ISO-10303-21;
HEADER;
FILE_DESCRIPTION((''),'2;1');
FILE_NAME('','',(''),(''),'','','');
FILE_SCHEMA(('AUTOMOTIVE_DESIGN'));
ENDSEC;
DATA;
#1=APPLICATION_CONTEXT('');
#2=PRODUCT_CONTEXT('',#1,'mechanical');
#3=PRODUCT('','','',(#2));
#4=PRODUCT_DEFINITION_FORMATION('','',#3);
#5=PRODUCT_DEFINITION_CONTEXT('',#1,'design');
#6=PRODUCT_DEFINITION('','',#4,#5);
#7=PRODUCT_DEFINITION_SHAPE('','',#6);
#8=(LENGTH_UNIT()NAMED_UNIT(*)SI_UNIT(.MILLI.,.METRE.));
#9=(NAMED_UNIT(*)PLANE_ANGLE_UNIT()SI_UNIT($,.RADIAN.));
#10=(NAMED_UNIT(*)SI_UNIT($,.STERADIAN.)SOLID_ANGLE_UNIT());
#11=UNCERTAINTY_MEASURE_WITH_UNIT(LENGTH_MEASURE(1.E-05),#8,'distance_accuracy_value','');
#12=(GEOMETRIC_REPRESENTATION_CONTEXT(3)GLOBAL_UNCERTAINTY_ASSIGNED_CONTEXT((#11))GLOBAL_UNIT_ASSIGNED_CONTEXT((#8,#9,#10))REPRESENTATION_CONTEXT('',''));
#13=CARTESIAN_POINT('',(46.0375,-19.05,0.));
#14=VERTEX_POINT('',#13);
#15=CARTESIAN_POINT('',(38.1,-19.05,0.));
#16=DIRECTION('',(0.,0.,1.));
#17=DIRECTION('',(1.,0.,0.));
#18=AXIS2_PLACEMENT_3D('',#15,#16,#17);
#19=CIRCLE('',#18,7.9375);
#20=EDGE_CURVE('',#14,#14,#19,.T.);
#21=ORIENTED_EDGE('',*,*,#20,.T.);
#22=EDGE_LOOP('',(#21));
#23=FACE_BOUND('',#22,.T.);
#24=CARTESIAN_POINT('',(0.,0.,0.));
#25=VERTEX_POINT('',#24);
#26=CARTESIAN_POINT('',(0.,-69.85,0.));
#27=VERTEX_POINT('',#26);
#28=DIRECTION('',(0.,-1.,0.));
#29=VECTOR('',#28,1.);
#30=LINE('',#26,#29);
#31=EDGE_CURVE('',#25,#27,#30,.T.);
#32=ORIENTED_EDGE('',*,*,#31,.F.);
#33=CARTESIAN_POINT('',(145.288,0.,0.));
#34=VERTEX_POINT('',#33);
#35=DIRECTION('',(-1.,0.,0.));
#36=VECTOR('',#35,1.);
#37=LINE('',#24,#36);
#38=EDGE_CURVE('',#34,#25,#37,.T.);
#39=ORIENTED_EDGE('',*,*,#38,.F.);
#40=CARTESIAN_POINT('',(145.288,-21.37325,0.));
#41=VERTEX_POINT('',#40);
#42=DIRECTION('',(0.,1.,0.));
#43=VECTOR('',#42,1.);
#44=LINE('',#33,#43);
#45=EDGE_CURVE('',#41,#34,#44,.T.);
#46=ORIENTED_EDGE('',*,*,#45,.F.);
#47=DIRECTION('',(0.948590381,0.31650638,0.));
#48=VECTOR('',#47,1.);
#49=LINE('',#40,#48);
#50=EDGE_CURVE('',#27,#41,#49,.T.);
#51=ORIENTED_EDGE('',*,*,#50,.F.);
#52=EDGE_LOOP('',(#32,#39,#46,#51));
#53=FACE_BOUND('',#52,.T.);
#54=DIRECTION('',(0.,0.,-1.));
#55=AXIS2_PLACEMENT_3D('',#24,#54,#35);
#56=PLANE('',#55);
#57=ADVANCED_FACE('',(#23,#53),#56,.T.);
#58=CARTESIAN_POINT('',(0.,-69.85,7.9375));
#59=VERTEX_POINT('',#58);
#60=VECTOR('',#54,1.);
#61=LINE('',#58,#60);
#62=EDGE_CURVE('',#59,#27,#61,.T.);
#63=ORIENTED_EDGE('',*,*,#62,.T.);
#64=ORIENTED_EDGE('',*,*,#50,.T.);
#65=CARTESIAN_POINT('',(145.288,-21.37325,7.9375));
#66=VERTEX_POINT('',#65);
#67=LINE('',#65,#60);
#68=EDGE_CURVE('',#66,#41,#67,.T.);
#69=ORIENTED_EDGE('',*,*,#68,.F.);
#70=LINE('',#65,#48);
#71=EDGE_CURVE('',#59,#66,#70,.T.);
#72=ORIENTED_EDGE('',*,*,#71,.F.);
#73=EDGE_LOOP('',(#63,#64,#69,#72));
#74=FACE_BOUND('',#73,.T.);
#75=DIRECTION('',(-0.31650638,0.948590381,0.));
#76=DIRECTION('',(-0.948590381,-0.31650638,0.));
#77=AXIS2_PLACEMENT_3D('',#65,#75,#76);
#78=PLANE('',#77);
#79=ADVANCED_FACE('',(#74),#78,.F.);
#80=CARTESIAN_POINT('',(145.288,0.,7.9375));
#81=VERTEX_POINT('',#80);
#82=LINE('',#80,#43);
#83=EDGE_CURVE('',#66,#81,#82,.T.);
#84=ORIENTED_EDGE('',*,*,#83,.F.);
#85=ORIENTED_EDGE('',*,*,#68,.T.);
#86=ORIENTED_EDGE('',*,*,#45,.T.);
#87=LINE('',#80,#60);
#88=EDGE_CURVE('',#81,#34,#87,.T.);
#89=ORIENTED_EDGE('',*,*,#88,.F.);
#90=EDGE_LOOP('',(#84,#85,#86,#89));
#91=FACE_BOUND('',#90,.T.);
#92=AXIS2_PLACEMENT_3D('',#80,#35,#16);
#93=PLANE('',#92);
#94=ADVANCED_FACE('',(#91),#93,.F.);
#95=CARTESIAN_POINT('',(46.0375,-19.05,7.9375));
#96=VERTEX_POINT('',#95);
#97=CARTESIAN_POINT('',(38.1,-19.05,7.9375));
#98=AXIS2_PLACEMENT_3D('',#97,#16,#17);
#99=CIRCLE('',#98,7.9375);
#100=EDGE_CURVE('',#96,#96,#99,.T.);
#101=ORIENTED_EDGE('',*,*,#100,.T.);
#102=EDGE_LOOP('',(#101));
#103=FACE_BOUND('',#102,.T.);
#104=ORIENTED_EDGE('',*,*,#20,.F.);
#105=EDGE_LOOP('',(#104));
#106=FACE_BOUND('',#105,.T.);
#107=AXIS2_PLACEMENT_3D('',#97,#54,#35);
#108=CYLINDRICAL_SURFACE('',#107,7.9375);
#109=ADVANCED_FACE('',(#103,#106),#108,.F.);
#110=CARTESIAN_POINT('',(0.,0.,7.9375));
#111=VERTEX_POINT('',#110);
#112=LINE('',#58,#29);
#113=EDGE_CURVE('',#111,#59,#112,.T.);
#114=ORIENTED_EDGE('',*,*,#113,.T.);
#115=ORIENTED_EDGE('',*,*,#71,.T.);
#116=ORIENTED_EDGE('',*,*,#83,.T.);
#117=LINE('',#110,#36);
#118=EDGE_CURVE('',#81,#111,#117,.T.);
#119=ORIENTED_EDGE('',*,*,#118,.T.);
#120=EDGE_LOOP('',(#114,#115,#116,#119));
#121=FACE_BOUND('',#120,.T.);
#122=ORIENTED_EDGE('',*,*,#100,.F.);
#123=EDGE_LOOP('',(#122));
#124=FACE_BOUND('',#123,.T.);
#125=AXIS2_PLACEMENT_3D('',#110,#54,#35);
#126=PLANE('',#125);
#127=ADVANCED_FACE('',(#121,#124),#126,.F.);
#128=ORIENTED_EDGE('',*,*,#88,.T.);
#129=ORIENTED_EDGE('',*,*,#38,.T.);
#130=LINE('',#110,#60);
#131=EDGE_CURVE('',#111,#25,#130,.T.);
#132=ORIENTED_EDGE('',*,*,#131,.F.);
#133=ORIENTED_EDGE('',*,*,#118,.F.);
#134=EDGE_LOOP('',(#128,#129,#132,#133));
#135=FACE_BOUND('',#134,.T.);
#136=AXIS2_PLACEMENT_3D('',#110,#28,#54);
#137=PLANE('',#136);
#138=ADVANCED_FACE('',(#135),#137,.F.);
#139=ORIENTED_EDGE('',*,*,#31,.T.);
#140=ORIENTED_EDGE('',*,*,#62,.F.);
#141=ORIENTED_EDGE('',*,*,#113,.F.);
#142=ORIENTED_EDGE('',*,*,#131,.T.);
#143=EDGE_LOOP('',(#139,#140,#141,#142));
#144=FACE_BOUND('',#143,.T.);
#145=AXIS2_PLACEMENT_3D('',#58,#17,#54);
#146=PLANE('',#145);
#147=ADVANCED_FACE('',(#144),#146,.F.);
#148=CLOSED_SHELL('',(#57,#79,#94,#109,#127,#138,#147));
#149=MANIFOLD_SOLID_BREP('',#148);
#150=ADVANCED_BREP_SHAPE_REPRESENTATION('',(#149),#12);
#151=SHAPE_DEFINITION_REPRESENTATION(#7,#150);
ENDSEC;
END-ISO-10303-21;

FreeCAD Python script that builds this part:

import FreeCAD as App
import Part
import Sketcher
from FreeCAD import Vector
Q = App.Units.Quantity


def add_polygon(sketch, points):
    """Adds a closed chain of lines whose ends are joined by coincident constraints."""
    first, n = sketch.GeometryCount, len(points)
    for a, b in zip(points, points[1:] + points[:1]):
        sketch.addGeometry(Part.LineSegment(App.Vector(*a, 0), App.Vector(*b, 0)), False)
    for i in range(n):
        sketch.addConstraint(Sketcher.Constraint("Coincident", first + i, 2, first + (i + 1) % n, 1))

doc = App.newDocument("Part")
params = doc.addObject("Spreadsheet::Sheet", "Params")
for row, (alias, value) in enumerate([
    ("sketch1_diameter", "0.625 in"),
    ("sketch1_width", "5.72 in"),
    ("sketch1_height", "2.75 in"),
    ("sketch1_length", "6.03 in"),
    ("pad1_length", "0.3125 in"),
], start=1):
    params.set(f"A{row}", alias)
    params.set(f"B{row}", "=" + value)
    params.setAlias(f"B{row}", alias)

body = doc.addObject("PartDesign::Body", "Body")

sketch1 = doc.addObject("Sketcher::SketchObject", "Sketch")
body.addObject(sketch1)
sketch1.AttachmentSupport = (doc.XY_Plane, [""])
sketch1.MapMode = "FlatFace"
add_polygon(sketch1, [(145.288, 0), (0, 0), (0, -69.85), (145.288, -21.37325)])
sketch1.addGeometry(Part.Circle(Vector(38.1, -19.05, 0), Vector(0, 0, 1), 7.9375), False)
sketch1.addConstraint([
    Sketcher.Constraint("Horizontal", 0),
    Sketcher.Constraint("Vertical", 1),
    Sketcher.Constraint("Vertical", 3),
    Sketcher.Constraint("Coincident", 0, 2, -1, 1),
    Sketcher.Constraint("Diameter", 4, Q("0.625 in")),
    Sketcher.Constraint("DistanceY", 1, 2, 4, 3, Q("2 in")),
    Sketcher.Constraint("DistanceX", 0, 2, 0, 1, Q("5.72 in")),
    Sketcher.Constraint("DistanceY", 1, 2, 1, 1, Q("2.75 in")),
    Sketcher.Constraint("DistanceX", -1, 1, 4, 3, Q("1.5 in")),
    Sketcher.Constraint("Distance", 2, Q("6.03 in")),
])
sketch1.setExpression("Constraints[8]", "Params.sketch1_diameter")
sketch1.setExpression("Constraints[10]", "Params.sketch1_width")
sketch1.setExpression("Constraints[11]", "Params.sketch1_height")
sketch1.setExpression("Constraints[13]", "Params.sketch1_length")
pad1 = doc.addObject("PartDesign::Pad", "Pad")
body.addObject(pad1)
pad1.Profile = sketch1
pad1.setExpression("Length", "Params.pad1_length")

doc.recompute()
